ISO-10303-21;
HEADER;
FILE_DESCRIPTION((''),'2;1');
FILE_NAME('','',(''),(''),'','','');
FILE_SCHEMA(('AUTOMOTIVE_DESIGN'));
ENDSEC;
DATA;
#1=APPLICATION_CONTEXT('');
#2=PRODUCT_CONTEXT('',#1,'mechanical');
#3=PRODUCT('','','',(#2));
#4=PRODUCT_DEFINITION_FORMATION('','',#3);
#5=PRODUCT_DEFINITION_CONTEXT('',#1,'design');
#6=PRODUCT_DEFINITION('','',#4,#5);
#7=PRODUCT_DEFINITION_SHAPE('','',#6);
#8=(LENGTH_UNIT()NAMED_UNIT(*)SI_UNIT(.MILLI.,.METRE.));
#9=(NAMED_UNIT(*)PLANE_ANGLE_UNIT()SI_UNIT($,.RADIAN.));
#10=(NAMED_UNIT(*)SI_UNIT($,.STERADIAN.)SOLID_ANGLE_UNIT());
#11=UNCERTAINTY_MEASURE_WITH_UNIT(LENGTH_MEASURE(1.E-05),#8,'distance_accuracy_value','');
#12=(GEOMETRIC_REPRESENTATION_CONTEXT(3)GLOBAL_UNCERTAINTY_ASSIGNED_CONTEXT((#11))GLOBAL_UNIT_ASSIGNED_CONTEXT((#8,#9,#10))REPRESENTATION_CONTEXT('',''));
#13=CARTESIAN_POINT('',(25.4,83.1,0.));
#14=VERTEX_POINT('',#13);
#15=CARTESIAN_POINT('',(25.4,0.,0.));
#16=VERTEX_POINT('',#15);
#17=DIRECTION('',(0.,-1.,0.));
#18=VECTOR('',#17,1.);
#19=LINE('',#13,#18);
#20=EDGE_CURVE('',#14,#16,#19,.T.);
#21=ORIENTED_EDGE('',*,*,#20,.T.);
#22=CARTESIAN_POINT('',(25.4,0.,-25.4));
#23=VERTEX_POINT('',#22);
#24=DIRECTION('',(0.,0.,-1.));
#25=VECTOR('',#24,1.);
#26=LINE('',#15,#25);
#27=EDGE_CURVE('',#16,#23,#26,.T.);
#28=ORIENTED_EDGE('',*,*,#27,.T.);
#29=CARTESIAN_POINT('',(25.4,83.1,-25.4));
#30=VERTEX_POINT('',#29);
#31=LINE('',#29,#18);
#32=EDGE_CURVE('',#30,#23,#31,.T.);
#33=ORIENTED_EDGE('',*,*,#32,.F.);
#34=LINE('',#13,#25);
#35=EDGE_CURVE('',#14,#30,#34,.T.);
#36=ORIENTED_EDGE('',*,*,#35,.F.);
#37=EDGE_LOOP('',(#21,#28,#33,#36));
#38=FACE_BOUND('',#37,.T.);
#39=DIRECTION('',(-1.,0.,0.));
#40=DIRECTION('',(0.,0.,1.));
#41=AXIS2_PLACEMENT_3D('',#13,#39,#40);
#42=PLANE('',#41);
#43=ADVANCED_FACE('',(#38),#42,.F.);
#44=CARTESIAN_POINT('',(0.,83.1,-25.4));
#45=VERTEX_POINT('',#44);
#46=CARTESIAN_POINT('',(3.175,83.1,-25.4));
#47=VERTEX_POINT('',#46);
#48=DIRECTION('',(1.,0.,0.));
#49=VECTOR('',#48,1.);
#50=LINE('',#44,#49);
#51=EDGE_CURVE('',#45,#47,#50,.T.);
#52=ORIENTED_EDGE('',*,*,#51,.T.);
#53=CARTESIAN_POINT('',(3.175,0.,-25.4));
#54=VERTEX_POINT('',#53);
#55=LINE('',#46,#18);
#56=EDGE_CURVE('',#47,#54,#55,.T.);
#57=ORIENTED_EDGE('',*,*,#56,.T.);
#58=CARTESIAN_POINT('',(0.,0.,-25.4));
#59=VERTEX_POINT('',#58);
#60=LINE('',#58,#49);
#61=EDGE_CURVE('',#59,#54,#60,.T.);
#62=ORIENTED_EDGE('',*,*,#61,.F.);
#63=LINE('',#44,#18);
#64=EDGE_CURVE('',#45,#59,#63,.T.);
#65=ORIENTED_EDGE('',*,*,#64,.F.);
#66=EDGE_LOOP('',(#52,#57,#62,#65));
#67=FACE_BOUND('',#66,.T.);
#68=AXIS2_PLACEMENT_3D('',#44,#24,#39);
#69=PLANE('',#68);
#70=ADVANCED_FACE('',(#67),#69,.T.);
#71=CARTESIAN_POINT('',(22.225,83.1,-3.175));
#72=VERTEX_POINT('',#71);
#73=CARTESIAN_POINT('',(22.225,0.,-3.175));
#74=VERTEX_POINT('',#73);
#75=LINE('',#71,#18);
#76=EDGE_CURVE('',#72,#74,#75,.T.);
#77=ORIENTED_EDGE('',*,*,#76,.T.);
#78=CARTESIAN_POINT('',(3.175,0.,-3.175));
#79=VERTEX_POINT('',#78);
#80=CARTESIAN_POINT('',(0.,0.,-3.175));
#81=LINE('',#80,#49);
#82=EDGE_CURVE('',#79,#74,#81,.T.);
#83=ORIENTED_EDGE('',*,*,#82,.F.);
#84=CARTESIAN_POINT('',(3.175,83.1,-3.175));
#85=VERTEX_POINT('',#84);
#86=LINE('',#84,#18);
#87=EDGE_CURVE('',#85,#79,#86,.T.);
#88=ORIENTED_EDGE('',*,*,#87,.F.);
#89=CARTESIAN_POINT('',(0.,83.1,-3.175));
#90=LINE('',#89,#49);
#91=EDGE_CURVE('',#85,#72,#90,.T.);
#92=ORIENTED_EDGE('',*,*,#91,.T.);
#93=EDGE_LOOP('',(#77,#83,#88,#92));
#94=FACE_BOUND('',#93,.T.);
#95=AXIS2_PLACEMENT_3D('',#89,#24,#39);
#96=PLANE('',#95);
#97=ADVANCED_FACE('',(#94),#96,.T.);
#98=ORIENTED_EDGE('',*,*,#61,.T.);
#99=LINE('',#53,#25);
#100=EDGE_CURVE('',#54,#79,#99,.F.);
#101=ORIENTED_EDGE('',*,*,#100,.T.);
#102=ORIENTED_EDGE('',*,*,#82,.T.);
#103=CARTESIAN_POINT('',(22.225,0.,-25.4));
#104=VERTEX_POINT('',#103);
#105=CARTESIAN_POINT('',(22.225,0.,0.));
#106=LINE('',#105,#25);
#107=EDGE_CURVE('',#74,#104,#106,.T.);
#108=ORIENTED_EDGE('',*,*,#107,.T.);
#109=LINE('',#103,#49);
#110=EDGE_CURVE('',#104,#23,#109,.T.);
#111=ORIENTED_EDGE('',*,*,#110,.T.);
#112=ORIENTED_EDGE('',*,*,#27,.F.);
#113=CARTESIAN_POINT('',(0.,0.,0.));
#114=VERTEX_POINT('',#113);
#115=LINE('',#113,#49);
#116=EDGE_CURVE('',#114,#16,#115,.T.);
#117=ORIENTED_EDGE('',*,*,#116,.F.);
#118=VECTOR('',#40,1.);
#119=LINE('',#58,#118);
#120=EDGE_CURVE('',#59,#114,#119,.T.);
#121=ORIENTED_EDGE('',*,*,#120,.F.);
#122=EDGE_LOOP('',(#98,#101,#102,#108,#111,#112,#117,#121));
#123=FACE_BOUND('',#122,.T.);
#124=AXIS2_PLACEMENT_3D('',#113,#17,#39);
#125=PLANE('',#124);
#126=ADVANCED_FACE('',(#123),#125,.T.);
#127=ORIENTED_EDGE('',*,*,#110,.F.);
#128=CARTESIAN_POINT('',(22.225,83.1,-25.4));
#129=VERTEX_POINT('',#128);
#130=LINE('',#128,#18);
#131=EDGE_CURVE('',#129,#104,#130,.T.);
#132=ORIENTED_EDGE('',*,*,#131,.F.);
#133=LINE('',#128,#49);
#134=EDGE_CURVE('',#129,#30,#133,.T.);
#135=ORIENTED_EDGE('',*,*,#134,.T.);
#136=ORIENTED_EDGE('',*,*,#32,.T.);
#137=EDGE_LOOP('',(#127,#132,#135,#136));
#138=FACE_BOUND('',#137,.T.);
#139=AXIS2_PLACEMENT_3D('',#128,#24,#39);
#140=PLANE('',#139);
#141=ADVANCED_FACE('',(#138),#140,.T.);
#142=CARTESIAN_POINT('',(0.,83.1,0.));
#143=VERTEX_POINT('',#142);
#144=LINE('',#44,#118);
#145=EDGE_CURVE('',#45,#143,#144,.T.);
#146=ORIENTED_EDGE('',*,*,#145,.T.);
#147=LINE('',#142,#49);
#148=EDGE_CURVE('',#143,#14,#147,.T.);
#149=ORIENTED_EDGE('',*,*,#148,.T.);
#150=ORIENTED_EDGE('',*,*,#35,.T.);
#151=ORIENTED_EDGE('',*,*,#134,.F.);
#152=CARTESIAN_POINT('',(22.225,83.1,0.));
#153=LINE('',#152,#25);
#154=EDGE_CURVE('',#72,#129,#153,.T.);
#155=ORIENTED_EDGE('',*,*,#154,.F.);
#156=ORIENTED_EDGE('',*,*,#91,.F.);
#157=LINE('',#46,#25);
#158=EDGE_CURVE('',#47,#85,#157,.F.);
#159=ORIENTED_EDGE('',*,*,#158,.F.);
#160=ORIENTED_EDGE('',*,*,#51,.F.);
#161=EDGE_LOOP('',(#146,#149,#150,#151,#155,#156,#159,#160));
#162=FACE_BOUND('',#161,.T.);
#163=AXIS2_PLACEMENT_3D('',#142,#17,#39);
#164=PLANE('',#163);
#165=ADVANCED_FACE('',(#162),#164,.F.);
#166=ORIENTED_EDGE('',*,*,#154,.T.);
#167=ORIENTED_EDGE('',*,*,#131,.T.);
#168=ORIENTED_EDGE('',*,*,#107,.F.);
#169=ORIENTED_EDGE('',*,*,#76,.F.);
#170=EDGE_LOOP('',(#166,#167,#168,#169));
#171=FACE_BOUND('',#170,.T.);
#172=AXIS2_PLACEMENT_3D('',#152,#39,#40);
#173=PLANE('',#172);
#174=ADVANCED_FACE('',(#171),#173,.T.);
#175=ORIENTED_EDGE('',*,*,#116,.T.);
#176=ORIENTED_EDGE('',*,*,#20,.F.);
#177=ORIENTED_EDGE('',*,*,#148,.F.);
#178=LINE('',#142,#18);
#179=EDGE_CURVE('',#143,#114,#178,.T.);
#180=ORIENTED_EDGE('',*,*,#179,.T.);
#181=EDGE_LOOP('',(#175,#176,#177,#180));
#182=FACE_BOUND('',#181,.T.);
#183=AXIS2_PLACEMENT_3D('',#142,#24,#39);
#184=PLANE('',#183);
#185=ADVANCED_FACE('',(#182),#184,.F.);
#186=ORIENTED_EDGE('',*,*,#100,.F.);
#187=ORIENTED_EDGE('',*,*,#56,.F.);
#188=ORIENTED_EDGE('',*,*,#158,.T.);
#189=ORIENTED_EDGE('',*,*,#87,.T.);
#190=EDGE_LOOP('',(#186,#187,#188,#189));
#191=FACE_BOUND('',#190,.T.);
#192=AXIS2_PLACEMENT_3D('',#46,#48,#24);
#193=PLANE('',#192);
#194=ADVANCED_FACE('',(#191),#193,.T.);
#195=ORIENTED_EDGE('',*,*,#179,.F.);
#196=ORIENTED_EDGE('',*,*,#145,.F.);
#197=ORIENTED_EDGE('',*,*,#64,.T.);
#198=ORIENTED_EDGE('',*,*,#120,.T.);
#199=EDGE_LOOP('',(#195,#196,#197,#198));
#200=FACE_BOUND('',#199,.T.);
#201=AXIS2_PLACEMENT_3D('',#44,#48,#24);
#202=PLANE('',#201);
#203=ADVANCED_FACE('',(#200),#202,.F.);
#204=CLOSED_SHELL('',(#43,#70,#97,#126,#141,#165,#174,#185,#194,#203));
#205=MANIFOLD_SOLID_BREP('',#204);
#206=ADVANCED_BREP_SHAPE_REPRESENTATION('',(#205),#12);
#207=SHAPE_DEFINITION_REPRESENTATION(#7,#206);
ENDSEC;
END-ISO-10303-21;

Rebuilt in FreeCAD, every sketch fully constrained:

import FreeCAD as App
import Part
import Sketcher
from FreeCAD import Vector
Q = App.Units.Quantity

doc = App.newDocument("Part")
body = doc.addObject("PartDesign::Body", "Body")

sketch1 = body.newObject("Sketcher::SketchObject", "Sketch")
sketch1.AttachmentSupport = (doc.getObject("XZ_Plane"), [""])
sketch1.MapMode = "FlatFace"
sketch1.addGeometry([
    Part.LineSegment(Vector(0, -25.4, 0), Vector(0, 0, 0)),
    Part.LineSegment(Vector(0, 0, 0), Vector(25.4, 0, 0)),
    Part.LineSegment(Vector(25.4, 0, 0), Vector(25.4, -25.4, 0)),
    Part.LineSegment(Vector(25.4, -25.4, 0), Vector(22.225, -25.4, 0)),
    Part.LineSegment(Vector(22.225, -25.4, 0), Vector(22.225, -3.175, 0)),
    Part.LineSegment(Vector(22.225, -3.175, 0), Vector(3.175, -3.175, 0)),
    Part.LineSegment(Vector(3.175, -3.175, 0), Vector(3.175, -25.4, 0)),
    Part.LineSegment(Vector(3.175, -25.4, 0), Vector(0, -25.4, 0)),
], False)
sketch1.addConstraint([
    Sketcher.Constraint("Coincident", 0, 2, 1, 1),
    Sketcher.Constraint("Coincident", 1, 2, 2, 1),
    Sketcher.Constraint("Coincident", 2, 2, 3, 1),
    Sketcher.Constraint("Coincident", 3, 2, 4, 1),
    Sketcher.Constraint("Coincident", 4, 2, 5, 1),
    Sketcher.Constraint("Coincident", 5, 2, 6, 1),
    Sketcher.Constraint("Coincident", 6, 2, 7, 1),
    Sketcher.Constraint("Coincident", 7, 2, 0, 1),
    Sketcher.Constraint("Vertical", 0),
    Sketcher.Constraint("Horizontal", 1),
    Sketcher.Constraint("Vertical", 2),
    Sketcher.Constraint("Horizontal", 3),
    Sketcher.Constraint("Vertical", 4),
    Sketcher.Constraint("Horizontal", 5),
    Sketcher.Constraint("Vertical", 6),
    Sketcher.Constraint("Horizontal", 7),
    Sketcher.Constraint("Coincident", 0, 2, -1, 1),
    Sketcher.Constraint("Horizontal", 3, 2, 6, 2),
    Sketcher.Constraint("Equal", 3, 7),
    Sketcher.Constraint("Equal", 1, 0),
    Sketcher.Constraint("DistanceX", 1, 1, 1, 2, Q("1 in")),
    Sketcher.Constraint("DistanceX", 5, 2, 5, 1, Q("0.75 in")),
    Sketcher.Constraint("DistanceY", 4, 1, 4, 2, Q("0.875 in")),
])
pad1 = body.newObject("PartDesign::Pad", "Pad")
pad1.Profile = sketch1
pad1.Length = 83.1
pad1.Reversed = True

doc.recompute()
